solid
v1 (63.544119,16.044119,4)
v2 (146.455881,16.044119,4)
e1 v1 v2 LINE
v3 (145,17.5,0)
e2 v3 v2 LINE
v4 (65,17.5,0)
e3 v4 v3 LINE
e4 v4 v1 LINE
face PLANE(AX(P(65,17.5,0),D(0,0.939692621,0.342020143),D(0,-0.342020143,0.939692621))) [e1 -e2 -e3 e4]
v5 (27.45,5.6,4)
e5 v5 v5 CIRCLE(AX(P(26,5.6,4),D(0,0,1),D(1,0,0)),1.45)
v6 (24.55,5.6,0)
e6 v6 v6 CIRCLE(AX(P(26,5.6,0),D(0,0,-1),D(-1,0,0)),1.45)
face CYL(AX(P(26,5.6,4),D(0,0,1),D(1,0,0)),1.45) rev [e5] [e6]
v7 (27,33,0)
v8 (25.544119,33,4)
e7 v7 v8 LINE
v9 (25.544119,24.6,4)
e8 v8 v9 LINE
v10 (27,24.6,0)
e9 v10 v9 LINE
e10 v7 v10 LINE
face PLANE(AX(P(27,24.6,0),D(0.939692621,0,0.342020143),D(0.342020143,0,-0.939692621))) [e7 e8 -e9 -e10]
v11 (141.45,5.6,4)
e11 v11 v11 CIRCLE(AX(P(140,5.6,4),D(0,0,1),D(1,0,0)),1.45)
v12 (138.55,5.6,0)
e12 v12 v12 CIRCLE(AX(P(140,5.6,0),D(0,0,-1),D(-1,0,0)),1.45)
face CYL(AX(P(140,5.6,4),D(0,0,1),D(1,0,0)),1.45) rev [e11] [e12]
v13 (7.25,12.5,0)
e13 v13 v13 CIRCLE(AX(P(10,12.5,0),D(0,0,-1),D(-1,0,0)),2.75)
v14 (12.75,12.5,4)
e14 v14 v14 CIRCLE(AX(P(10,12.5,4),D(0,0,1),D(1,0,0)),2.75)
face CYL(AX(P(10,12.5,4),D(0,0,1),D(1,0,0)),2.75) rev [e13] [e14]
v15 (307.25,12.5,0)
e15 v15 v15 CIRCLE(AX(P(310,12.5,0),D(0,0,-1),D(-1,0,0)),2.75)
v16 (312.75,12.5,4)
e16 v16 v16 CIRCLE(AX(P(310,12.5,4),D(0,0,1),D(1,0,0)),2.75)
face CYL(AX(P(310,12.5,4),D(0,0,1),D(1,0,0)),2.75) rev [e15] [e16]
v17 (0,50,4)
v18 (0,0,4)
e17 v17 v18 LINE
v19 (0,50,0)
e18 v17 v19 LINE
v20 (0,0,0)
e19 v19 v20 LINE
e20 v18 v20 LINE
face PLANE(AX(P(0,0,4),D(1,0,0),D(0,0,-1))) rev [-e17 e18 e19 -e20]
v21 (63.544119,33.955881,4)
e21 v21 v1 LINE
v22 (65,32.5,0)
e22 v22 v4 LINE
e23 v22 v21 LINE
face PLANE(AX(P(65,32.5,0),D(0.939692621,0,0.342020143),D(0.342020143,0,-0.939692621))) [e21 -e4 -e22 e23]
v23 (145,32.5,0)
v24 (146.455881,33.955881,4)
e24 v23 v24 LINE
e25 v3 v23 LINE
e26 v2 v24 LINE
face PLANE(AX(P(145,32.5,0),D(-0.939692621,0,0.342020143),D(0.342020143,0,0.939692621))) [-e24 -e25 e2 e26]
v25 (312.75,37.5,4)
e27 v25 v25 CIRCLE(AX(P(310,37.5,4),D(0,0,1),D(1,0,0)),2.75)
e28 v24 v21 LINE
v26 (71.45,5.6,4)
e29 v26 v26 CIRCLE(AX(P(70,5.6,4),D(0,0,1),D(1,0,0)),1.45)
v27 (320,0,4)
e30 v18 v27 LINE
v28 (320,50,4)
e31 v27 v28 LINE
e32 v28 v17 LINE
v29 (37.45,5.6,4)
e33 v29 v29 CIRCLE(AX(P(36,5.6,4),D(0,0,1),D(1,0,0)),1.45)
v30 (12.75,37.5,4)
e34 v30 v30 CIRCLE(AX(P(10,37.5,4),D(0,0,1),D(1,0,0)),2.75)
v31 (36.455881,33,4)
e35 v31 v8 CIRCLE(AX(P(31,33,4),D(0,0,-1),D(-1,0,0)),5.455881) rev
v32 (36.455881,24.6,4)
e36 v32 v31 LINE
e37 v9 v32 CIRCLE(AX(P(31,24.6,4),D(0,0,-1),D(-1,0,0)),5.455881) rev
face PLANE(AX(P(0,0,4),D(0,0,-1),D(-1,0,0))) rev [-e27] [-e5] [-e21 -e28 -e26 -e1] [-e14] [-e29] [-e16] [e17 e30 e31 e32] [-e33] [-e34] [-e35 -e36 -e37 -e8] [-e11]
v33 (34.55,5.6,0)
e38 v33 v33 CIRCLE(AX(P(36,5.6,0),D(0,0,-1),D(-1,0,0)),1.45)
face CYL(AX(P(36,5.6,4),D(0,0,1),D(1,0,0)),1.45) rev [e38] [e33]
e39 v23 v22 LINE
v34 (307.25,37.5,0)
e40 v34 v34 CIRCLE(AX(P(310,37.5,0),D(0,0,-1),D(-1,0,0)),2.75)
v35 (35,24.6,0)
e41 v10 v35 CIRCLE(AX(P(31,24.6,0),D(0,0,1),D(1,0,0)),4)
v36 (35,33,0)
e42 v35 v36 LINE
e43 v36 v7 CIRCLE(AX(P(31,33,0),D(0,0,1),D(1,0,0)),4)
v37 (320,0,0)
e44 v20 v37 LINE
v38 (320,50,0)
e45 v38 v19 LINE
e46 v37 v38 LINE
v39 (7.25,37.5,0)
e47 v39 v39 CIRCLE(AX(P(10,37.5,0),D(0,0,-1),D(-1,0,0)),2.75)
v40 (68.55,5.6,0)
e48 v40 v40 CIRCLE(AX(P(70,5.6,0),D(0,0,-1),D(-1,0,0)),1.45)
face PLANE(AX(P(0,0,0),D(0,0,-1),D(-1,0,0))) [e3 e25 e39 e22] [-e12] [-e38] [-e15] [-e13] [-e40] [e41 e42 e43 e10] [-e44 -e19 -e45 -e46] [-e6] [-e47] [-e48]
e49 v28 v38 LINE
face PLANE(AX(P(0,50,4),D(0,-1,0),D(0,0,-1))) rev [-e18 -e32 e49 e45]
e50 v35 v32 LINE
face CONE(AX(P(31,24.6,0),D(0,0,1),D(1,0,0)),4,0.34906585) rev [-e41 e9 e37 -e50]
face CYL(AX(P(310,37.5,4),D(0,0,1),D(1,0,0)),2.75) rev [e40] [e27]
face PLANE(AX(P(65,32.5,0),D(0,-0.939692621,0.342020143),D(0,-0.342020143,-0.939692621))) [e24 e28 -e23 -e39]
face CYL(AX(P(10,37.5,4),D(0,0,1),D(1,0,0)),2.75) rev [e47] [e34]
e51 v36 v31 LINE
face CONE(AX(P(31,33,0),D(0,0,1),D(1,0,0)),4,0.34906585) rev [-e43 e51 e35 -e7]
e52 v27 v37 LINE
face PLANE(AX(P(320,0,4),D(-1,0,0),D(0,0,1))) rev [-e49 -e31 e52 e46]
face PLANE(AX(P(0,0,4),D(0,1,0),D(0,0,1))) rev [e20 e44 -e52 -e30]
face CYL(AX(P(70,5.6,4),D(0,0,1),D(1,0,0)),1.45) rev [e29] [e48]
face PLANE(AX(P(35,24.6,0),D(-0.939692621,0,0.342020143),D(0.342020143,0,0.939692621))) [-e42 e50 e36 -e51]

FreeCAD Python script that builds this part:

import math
import FreeCAD as App
import Part
import Sketcher
Q = App.Units.Quantity


def faces_at(feature, points):
    """Names of the faces that lie closest to the given points."""
    faces = feature.Shape.Faces
    near = lambda p: min(range(len(faces)), key=lambda i: faces[i].distToShape(Part.Vertex(*p))[0])
    return sorted({f"Face{near(p) + 1}" for p in points})

doc = App.newDocument("Part")
body = doc.addObject("PartDesign::Body", "Body")

sketch1 = body.newObject("Sketcher::SketchObject", "Sketch")
sketch1.AttachmentSupport = (doc.getObject("XY_Plane"), [""])
sketch1.MapMode = "FlatFace"
sketch1.addGeometry(Part.LineSegment(App.Vector(0, 50, 0), App.Vector(0, 0, 0)), False)
sketch1.addGeometry(Part.LineSegment(App.Vector(0, 0, 0), App.Vector(320, 0, 0)), False)
sketch1.addGeometry(Part.LineSegment(App.Vector(320, 0, 0), App.Vector(320, 50, 0)), False)
sketch1.addGeometry(Part.LineSegment(App.Vector(320, 50, 0), App.Vector(0, 50, 0)), False)
sketch1.addConstraint(Sketcher.Constraint("Coincident", 0, 2, 1, 1))
sketch1.addConstraint(Sketcher.Constraint("Coincident", 1, 2, 2, 1))
sketch1.addConstraint(Sketcher.Constraint("Coincident", 2, 2, 3, 1))
sketch1.addConstraint(Sketcher.Constraint("Coincident", 3, 2, 0, 1))
sketch1.addConstraint(Sketcher.Constraint("Vertical", 0))
sketch1.addConstraint(Sketcher.Constraint("Horizontal", 1))
sketch1.addConstraint(Sketcher.Constraint("Vertical", 2))
sketch1.addConstraint(Sketcher.Constraint("Horizontal", 3))
sketch1.addConstraint(Sketcher.Constraint("Coincident", 0, 2, -1, 1))
sketch1.addConstraint(Sketcher.Constraint("DistanceX", 1, 1, 1, 2, Q("320 mm")))
sketch1.addConstraint(Sketcher.Constraint("DistanceY", 0, 2, 0, 1, Q("50 mm")))
pad1 = body.newObject("PartDesign::Pad", "Pad")
pad1.Profile = sketch1
pad1.Length = 4

sketch2 = body.newObject("Sketcher::SketchObject", "Sketch001")
sketch2.AttachmentSupport = (doc.getObject("YZ_Plane"), [""])
sketch2.MapMode = "FlatFace"
sketch2.AttachmentOffset = App.Placement(App.Vector(0, 0, 310), App.Rotation())
sketch2.addGeometry(Part.LineSegment(App.Vector(37.5, -11.652367, 0), App.Vector(37.5, 4, 0)), False)
sketch2.addGeometry(Part.LineSegment(App.Vector(37.5, 4, 0), App.Vector(34.75, 4, 0)), False)
sketch2.addGeometry(Part.LineSegment(App.Vector(34.75, 4, 0), App.Vector(34.75, -10, 0)), False)
sketch2.addGeometry(Part.LineSegment(App.Vector(34.75, -10, 0), App.Vector(37.5, -11.652367, 0)), False)
sketch2.addGeometry(Part.LineSegment(App.Vector(37.5, 4, 0), App.Vector(37.5, -11.652367, 0)), True)
sketch2.addConstraint(Sketcher.Constraint("Coincident", 0, 2, 1, 1))
sketch2.addConstraint(Sketcher.Constraint("Coincident", 1, 2, 2, 1))
sketch2.addConstraint(Sketcher.Constraint("Coincident", 2, 2, 3, 1))
sketch2.addConstraint(Sketcher.Constraint("Coincident", 3, 2, 0, 1))
sketch2.addConstraint(Sketcher.Constraint("Vertical", 0))
sketch2.addConstraint(Sketcher.Constraint("Horizontal", 1))
sketch2.addConstraint(Sketcher.Constraint("Vertical", 2))
sketch2.addConstraint(Sketcher.Constraint("Vertical", 4))
sketch2.addConstraint(Sketcher.Constraint("Coincident", 4, 1, 0, 2))
sketch2.addConstraint(Sketcher.Constraint("Equal", 0, 4))
sketch2.addConstraint(Sketcher.Constraint("DistanceY", 2, 2, 2, 1, Q("14 mm")))
sketch2.addConstraint(Sketcher.Constraint("Angle", 3, Q("-31 deg")))
sketch2.addConstraint(Sketcher.Constraint("DistanceY", -1, 1, 0, 2, Q("4 mm")))
sketch2.addConstraint(Sketcher.Constraint("DistanceX", 1, 2, 1, 1, Q("2.75 mm")))
sketch2.addConstraint(Sketcher.Constraint("DistanceX", -1, 1, 0, 2, Q("37.5 mm")))
groove = body.newObject("PartDesign::Groove", "Groove")
groove.Profile = sketch2
groove.ReferenceAxis = (sketch2, ["Axis0"])
groove.Angle = 360
doc.recompute()

linearpattern = body.newObject("PartDesign::LinearPattern", "LinearPattern")
linearpattern.Originals = [groove]
linearpattern.Direction = (doc.getObject("X_Axis"), [""])
linearpattern.Mode = "offset"
linearpattern.Offset = 300
linearpattern.Occurrences = 2
linearpattern.Reversed = True
body.Tip = linearpattern
doc.recompute()

linearpattern2 = body.newObject("PartDesign::LinearPattern", "LinearPattern001")
linearpattern2.Originals = [groove]
linearpattern2.Direction = (doc.getObject("Y_Axis"), [""])
linearpattern2.Mode = "offset"
linearpattern2.Offset = 25
linearpattern2.Occurrences = 2
linearpattern2.Reversed = True
body.Tip = linearpattern2

sketch3 = body.newObject("Sketcher::SketchObject", "Sketch002")
sketch3.AttachmentSupport = (doc.getObject("YZ_Plane"), [""])
sketch3.MapMode = "FlatFace"
sketch3.AttachmentOffset = App.Placement(App.Vector(0, 0, 10), App.Rotation())
sketch3.addGeometry(Part.LineSegment(App.Vector(12.5, -11.652367, 0), App.Vector(12.5, 4, 0)), False)
sketch3.addGeometry(Part.LineSegment(App.Vector(12.5, 4, 0), App.Vector(9.75, 4, 0)), False)
sketch3.addGeometry(Part.LineSegment(App.Vector(9.75, 4, 0), App.Vector(9.75, -10, 0)), False)
sketch3.addGeometry(Part.LineSegment(App.Vector(9.75, -10, 0), App.Vector(12.5, -11.652367, 0)), False)
sketch3.addGeometry(Part.LineSegment(App.Vector(12.5, 4, 0), App.Vector(12.5, -11.652367, 0)), True)
sketch3.addConstraint(Sketcher.Constraint("Coincident", 0, 2, 1, 1))
sketch3.addConstraint(Sketcher.Constraint("Coincident", 1, 2, 2, 1))
sketch3.addConstraint(Sketcher.Constraint("Coincident", 2, 2, 3, 1))
sketch3.addConstraint(Sketcher.Constraint("Coincident", 3, 2, 0, 1))
sketch3.addConstraint(Sketcher.Constraint("Vertical", 0))
sketch3.addConstraint(Sketcher.Constraint("Horizontal", 1))
sketch3.addConstraint(Sketcher.Constraint("Vertical", 2))
sketch3.addConstraint(Sketcher.Constraint("Vertical", 4))
sketch3.addConstraint(Sketcher.Constraint("Coincident", 4, 1, 0, 2))
sketch3.addConstraint(Sketcher.Constraint("Equal", 0, 4))
sketch3.addConstraint(Sketcher.Constraint("DistanceY", 2, 2, 2, 1, Q("14 mm")))
sketch3.addConstraint(Sketcher.Constraint("Angle", 3, Q("-31 deg")))
sketch3.addConstraint(Sketcher.Constraint("DistanceY", -1, 1, 0, 2, Q("4 mm")))
sketch3.addConstraint(Sketcher.Constraint("DistanceX", 1, 2, 1, 1, Q("2.75 mm")))
sketch3.addConstraint(Sketcher.Constraint("DistanceX", -1, 1, 0, 2, Q("12.5 mm")))
groove2 = body.newObject("PartDesign::Groove", "Groove001")
groove2.Profile = sketch3
groove2.ReferenceAxis = (sketch3, ["Axis0"])
groove2.Angle = 360

sketch4 = body.newObject("Sketcher::SketchObject", "Sketch003")
sketch4.AttachmentSupport = (doc.getObject("XY_Plane"), [""])
sketch4.MapMode = "FlatFace"
sketch4.AttachmentOffset = App.Placement(App.Vector(0, 0, 4), App.Rotation())
sketch4.addGeometry(Part.LineSegment(App.Vector(65, 32.5, 0), App.Vector(65, 17.5, 0)), False)
sketch4.addGeometry(Part.LineSegment(App.Vector(65, 17.5, 0), App.Vector(145, 17.5, 0)), False)
sketch4.addGeometry(Part.LineSegment(App.Vector(145, 17.5, 0), App.Vector(145, 32.5, 0)), False)
sketch4.addGeometry(Part.LineSegment(App.Vector(145, 32.5, 0), App.Vector(65, 32.5, 0)), False)
sketch4.addConstraint(Sketcher.Constraint("Coincident", 0, 2, 1, 1))
sketch4.addConstraint(Sketcher.Constraint("Coincident", 1, 2, 2, 1))
sketch4.addConstraint(Sketcher.Constraint("Coincident", 2, 2, 3, 1))
sketch4.addConstraint(Sketcher.Constraint("Coincident", 3, 2, 0, 1))
sketch4.addConstraint(Sketcher.Constraint("Vertical", 0))
sketch4.addConstraint(Sketcher.Constraint("Horizontal", 1))
sketch4.addConstraint(Sketcher.Constraint("Vertical", 2))
sketch4.addConstraint(Sketcher.Constraint("Horizontal", 3))
sketch4.addConstraint(Sketcher.Constraint("DistanceX", 1, 1, 1, 2, Q("80 mm")))
sketch4.addConstraint(Sketcher.Constraint("DistanceY", 0, 2, 0, 1, Q("15 mm")))
sketch4.addConstraint(Sketcher.Constraint("DistanceX", -1, 1, 0, 2, Q("65 mm")))
sketch4.addConstraint(Sketcher.Constraint("DistanceY", -1, 1, 0, 2, Q("17.5 mm")))
pocket1 = body.newObject("PartDesign::Pocket", "Pocket")
pocket1.Profile = sketch4
pocket1.Type = "ThroughAll"

sketch5 = body.newObject("Sketcher::SketchObject", "Sketch004")
sketch5.AttachmentSupport = (doc.getObject("XY_Plane"), [""])
sketch5.MapMode = "FlatFace"
sketch5.AttachmentOffset = App.Placement(App.Vector(0, 0, 4), App.Rotation())
sketch5.addGeometry(Part.LineSegment(App.Vector(27, 33, 0), App.Vector(27, 24.6, 0)), False)
sketch5.addGeometry(Part.ArcOfCircle(Part.Circle(App.Vector(31, 24.6, 0), App.Vector(0, 0, 1), 4), math.radians(180), math.radians(360)), False)
sketch5.addGeometry(Part.LineSegment(App.Vector(35, 24.6, 0), App.Vector(35, 33, 0)), False)
sketch5.addGeometry(Part.ArcOfCircle(Part.Circle(App.Vector(31, 33, 0), App.Vector(0, 0, 1), 4), math.radians(0), math.radians(180)), False)
sketch5.addConstraint(Sketcher.Constraint("Tangent", 0, 2, 1, 1))
sketch5.addConstraint(Sketcher.Constraint("Tangent", 1, 2, 2, 1))
sketch5.addConstraint(Sketcher.Constraint("Tangent", 2, 2, 3, 1))
sketch5.addConstraint(Sketcher.Constraint("Tangent", 3, 2, 0, 1))
sketch5.addConstraint(Sketcher.Constraint("Vertical", 0))
sketch5.addConstraint(Sketcher.Constraint("Vertical", 2))
sketch5.addConstraint(Sketcher.Constraint("Radius", 1, Q("4 mm")))
sketch5.addConstraint(Sketcher.Constraint("DistanceY", 0, 2, 0, 1, Q("8.4 mm")))
sketch5.addConstraint(Sketcher.Constraint("DistanceX", -1, 1, 1, 3, Q("31 mm")))
sketch5.addConstraint(Sketcher.Constraint("DistanceY", -1, 1, 3, 3, Q("33 mm")))
pocket2 = body.newObject("PartDesign::Pocket", "Pocket001")
pocket2.Profile = sketch5
pocket2.Type = "ThroughAll"

sketch6 = body.newObject("Sketcher::SketchObject", "Sketch005")
sketch6.AttachmentSupport = (doc.getObject("XY_Plane"), [""])
sketch6.MapMode = "FlatFace"
sketch6.AttachmentOffset = App.Placement(App.Vector(0, 0, 4), App.Rotation())
sketch6.addGeometry(Part.Circle(App.Vector(140, 5.6, 0), App.Vector(0, 0, 1), 1.45), False)
sketch6.addGeometry(Part.Circle(App.Vector(26, 5.6, 0), App.Vector(0, 0, 1), 1.45), False)
sketch6.addGeometry(Part.Circle(App.Vector(36, 5.6, 0), App.Vector(0, 0, 1), 1.45), False)
sketch6.addGeometry(Part.Circle(App.Vector(70, 5.6, 0), App.Vector(0, 0, 1), 1.45), False)
sketch6.addConstraint(Sketcher.Constraint("Equal", 0, 1))
sketch6.addConstraint(Sketcher.Constraint("Equal", 1, 2))
sketch6.addConstraint(Sketcher.Constraint("Equal", 2, 3))
sketch6.addConstraint(Sketcher.Constraint("Horizontal", 0, 3, 1, 3))
sketch6.addConstraint(Sketcher.Constraint("Horizontal", 1, 3, 2, 3))
sketch6.addConstraint(Sketcher.Constraint("Horizontal", 2, 3, 3, 3))
sketch6.addConstraint(Sketcher.Constraint("Diameter", 0, Q("2.9 mm")))
sketch6.addConstraint(Sketcher.Constraint("DistanceX", -1, 1, 0, 3, Q("140 mm")))
sketch6.addConstraint(Sketcher.Constraint("DistanceX", -1, 1, 1, 3, Q("26 mm")))
sketch6.addConstraint(Sketcher.Constraint("DistanceX", -1, 1, 2, 3, Q("36 mm")))
sketch6.addConstraint(Sketcher.Constraint("DistanceX", -1, 1, 3, 3, Q("70 mm")))
sketch6.addConstraint(Sketcher.Constraint("DistanceY", -1, 1, 0, 3, Q("5.6 mm")))
doc.recompute()
hole = body.newObject("PartDesign::Hole", "Hole")
hole.Profile = sketch6
hole.ThreadType = "None"
hole.Diameter = 2.9
hole.DepthType = "Dimension"
hole.Depth = 14
hole.DrillPoint = "Angled"
hole.DrillPointAngle = 118
doc.recompute()

draft = body.newObject("PartDesign::Draft", "Draft")
draft.Base = (hole, faces_at(hole, [
    (145, 25, 2),
    (105, 32.5, 2),
    (65, 25, 2),
    (105, 17.5, 2),
    (35, 28.8, 2),
    (31, 37, 2),
    (27, 28.8, 2),
    (31, 20.6, 2),
]))
draft.NeutralPlane = (doc.getObject("XY_Plane"), [""])
draft.Angle = 20
draft.Reversed = False

doc.recompute()
